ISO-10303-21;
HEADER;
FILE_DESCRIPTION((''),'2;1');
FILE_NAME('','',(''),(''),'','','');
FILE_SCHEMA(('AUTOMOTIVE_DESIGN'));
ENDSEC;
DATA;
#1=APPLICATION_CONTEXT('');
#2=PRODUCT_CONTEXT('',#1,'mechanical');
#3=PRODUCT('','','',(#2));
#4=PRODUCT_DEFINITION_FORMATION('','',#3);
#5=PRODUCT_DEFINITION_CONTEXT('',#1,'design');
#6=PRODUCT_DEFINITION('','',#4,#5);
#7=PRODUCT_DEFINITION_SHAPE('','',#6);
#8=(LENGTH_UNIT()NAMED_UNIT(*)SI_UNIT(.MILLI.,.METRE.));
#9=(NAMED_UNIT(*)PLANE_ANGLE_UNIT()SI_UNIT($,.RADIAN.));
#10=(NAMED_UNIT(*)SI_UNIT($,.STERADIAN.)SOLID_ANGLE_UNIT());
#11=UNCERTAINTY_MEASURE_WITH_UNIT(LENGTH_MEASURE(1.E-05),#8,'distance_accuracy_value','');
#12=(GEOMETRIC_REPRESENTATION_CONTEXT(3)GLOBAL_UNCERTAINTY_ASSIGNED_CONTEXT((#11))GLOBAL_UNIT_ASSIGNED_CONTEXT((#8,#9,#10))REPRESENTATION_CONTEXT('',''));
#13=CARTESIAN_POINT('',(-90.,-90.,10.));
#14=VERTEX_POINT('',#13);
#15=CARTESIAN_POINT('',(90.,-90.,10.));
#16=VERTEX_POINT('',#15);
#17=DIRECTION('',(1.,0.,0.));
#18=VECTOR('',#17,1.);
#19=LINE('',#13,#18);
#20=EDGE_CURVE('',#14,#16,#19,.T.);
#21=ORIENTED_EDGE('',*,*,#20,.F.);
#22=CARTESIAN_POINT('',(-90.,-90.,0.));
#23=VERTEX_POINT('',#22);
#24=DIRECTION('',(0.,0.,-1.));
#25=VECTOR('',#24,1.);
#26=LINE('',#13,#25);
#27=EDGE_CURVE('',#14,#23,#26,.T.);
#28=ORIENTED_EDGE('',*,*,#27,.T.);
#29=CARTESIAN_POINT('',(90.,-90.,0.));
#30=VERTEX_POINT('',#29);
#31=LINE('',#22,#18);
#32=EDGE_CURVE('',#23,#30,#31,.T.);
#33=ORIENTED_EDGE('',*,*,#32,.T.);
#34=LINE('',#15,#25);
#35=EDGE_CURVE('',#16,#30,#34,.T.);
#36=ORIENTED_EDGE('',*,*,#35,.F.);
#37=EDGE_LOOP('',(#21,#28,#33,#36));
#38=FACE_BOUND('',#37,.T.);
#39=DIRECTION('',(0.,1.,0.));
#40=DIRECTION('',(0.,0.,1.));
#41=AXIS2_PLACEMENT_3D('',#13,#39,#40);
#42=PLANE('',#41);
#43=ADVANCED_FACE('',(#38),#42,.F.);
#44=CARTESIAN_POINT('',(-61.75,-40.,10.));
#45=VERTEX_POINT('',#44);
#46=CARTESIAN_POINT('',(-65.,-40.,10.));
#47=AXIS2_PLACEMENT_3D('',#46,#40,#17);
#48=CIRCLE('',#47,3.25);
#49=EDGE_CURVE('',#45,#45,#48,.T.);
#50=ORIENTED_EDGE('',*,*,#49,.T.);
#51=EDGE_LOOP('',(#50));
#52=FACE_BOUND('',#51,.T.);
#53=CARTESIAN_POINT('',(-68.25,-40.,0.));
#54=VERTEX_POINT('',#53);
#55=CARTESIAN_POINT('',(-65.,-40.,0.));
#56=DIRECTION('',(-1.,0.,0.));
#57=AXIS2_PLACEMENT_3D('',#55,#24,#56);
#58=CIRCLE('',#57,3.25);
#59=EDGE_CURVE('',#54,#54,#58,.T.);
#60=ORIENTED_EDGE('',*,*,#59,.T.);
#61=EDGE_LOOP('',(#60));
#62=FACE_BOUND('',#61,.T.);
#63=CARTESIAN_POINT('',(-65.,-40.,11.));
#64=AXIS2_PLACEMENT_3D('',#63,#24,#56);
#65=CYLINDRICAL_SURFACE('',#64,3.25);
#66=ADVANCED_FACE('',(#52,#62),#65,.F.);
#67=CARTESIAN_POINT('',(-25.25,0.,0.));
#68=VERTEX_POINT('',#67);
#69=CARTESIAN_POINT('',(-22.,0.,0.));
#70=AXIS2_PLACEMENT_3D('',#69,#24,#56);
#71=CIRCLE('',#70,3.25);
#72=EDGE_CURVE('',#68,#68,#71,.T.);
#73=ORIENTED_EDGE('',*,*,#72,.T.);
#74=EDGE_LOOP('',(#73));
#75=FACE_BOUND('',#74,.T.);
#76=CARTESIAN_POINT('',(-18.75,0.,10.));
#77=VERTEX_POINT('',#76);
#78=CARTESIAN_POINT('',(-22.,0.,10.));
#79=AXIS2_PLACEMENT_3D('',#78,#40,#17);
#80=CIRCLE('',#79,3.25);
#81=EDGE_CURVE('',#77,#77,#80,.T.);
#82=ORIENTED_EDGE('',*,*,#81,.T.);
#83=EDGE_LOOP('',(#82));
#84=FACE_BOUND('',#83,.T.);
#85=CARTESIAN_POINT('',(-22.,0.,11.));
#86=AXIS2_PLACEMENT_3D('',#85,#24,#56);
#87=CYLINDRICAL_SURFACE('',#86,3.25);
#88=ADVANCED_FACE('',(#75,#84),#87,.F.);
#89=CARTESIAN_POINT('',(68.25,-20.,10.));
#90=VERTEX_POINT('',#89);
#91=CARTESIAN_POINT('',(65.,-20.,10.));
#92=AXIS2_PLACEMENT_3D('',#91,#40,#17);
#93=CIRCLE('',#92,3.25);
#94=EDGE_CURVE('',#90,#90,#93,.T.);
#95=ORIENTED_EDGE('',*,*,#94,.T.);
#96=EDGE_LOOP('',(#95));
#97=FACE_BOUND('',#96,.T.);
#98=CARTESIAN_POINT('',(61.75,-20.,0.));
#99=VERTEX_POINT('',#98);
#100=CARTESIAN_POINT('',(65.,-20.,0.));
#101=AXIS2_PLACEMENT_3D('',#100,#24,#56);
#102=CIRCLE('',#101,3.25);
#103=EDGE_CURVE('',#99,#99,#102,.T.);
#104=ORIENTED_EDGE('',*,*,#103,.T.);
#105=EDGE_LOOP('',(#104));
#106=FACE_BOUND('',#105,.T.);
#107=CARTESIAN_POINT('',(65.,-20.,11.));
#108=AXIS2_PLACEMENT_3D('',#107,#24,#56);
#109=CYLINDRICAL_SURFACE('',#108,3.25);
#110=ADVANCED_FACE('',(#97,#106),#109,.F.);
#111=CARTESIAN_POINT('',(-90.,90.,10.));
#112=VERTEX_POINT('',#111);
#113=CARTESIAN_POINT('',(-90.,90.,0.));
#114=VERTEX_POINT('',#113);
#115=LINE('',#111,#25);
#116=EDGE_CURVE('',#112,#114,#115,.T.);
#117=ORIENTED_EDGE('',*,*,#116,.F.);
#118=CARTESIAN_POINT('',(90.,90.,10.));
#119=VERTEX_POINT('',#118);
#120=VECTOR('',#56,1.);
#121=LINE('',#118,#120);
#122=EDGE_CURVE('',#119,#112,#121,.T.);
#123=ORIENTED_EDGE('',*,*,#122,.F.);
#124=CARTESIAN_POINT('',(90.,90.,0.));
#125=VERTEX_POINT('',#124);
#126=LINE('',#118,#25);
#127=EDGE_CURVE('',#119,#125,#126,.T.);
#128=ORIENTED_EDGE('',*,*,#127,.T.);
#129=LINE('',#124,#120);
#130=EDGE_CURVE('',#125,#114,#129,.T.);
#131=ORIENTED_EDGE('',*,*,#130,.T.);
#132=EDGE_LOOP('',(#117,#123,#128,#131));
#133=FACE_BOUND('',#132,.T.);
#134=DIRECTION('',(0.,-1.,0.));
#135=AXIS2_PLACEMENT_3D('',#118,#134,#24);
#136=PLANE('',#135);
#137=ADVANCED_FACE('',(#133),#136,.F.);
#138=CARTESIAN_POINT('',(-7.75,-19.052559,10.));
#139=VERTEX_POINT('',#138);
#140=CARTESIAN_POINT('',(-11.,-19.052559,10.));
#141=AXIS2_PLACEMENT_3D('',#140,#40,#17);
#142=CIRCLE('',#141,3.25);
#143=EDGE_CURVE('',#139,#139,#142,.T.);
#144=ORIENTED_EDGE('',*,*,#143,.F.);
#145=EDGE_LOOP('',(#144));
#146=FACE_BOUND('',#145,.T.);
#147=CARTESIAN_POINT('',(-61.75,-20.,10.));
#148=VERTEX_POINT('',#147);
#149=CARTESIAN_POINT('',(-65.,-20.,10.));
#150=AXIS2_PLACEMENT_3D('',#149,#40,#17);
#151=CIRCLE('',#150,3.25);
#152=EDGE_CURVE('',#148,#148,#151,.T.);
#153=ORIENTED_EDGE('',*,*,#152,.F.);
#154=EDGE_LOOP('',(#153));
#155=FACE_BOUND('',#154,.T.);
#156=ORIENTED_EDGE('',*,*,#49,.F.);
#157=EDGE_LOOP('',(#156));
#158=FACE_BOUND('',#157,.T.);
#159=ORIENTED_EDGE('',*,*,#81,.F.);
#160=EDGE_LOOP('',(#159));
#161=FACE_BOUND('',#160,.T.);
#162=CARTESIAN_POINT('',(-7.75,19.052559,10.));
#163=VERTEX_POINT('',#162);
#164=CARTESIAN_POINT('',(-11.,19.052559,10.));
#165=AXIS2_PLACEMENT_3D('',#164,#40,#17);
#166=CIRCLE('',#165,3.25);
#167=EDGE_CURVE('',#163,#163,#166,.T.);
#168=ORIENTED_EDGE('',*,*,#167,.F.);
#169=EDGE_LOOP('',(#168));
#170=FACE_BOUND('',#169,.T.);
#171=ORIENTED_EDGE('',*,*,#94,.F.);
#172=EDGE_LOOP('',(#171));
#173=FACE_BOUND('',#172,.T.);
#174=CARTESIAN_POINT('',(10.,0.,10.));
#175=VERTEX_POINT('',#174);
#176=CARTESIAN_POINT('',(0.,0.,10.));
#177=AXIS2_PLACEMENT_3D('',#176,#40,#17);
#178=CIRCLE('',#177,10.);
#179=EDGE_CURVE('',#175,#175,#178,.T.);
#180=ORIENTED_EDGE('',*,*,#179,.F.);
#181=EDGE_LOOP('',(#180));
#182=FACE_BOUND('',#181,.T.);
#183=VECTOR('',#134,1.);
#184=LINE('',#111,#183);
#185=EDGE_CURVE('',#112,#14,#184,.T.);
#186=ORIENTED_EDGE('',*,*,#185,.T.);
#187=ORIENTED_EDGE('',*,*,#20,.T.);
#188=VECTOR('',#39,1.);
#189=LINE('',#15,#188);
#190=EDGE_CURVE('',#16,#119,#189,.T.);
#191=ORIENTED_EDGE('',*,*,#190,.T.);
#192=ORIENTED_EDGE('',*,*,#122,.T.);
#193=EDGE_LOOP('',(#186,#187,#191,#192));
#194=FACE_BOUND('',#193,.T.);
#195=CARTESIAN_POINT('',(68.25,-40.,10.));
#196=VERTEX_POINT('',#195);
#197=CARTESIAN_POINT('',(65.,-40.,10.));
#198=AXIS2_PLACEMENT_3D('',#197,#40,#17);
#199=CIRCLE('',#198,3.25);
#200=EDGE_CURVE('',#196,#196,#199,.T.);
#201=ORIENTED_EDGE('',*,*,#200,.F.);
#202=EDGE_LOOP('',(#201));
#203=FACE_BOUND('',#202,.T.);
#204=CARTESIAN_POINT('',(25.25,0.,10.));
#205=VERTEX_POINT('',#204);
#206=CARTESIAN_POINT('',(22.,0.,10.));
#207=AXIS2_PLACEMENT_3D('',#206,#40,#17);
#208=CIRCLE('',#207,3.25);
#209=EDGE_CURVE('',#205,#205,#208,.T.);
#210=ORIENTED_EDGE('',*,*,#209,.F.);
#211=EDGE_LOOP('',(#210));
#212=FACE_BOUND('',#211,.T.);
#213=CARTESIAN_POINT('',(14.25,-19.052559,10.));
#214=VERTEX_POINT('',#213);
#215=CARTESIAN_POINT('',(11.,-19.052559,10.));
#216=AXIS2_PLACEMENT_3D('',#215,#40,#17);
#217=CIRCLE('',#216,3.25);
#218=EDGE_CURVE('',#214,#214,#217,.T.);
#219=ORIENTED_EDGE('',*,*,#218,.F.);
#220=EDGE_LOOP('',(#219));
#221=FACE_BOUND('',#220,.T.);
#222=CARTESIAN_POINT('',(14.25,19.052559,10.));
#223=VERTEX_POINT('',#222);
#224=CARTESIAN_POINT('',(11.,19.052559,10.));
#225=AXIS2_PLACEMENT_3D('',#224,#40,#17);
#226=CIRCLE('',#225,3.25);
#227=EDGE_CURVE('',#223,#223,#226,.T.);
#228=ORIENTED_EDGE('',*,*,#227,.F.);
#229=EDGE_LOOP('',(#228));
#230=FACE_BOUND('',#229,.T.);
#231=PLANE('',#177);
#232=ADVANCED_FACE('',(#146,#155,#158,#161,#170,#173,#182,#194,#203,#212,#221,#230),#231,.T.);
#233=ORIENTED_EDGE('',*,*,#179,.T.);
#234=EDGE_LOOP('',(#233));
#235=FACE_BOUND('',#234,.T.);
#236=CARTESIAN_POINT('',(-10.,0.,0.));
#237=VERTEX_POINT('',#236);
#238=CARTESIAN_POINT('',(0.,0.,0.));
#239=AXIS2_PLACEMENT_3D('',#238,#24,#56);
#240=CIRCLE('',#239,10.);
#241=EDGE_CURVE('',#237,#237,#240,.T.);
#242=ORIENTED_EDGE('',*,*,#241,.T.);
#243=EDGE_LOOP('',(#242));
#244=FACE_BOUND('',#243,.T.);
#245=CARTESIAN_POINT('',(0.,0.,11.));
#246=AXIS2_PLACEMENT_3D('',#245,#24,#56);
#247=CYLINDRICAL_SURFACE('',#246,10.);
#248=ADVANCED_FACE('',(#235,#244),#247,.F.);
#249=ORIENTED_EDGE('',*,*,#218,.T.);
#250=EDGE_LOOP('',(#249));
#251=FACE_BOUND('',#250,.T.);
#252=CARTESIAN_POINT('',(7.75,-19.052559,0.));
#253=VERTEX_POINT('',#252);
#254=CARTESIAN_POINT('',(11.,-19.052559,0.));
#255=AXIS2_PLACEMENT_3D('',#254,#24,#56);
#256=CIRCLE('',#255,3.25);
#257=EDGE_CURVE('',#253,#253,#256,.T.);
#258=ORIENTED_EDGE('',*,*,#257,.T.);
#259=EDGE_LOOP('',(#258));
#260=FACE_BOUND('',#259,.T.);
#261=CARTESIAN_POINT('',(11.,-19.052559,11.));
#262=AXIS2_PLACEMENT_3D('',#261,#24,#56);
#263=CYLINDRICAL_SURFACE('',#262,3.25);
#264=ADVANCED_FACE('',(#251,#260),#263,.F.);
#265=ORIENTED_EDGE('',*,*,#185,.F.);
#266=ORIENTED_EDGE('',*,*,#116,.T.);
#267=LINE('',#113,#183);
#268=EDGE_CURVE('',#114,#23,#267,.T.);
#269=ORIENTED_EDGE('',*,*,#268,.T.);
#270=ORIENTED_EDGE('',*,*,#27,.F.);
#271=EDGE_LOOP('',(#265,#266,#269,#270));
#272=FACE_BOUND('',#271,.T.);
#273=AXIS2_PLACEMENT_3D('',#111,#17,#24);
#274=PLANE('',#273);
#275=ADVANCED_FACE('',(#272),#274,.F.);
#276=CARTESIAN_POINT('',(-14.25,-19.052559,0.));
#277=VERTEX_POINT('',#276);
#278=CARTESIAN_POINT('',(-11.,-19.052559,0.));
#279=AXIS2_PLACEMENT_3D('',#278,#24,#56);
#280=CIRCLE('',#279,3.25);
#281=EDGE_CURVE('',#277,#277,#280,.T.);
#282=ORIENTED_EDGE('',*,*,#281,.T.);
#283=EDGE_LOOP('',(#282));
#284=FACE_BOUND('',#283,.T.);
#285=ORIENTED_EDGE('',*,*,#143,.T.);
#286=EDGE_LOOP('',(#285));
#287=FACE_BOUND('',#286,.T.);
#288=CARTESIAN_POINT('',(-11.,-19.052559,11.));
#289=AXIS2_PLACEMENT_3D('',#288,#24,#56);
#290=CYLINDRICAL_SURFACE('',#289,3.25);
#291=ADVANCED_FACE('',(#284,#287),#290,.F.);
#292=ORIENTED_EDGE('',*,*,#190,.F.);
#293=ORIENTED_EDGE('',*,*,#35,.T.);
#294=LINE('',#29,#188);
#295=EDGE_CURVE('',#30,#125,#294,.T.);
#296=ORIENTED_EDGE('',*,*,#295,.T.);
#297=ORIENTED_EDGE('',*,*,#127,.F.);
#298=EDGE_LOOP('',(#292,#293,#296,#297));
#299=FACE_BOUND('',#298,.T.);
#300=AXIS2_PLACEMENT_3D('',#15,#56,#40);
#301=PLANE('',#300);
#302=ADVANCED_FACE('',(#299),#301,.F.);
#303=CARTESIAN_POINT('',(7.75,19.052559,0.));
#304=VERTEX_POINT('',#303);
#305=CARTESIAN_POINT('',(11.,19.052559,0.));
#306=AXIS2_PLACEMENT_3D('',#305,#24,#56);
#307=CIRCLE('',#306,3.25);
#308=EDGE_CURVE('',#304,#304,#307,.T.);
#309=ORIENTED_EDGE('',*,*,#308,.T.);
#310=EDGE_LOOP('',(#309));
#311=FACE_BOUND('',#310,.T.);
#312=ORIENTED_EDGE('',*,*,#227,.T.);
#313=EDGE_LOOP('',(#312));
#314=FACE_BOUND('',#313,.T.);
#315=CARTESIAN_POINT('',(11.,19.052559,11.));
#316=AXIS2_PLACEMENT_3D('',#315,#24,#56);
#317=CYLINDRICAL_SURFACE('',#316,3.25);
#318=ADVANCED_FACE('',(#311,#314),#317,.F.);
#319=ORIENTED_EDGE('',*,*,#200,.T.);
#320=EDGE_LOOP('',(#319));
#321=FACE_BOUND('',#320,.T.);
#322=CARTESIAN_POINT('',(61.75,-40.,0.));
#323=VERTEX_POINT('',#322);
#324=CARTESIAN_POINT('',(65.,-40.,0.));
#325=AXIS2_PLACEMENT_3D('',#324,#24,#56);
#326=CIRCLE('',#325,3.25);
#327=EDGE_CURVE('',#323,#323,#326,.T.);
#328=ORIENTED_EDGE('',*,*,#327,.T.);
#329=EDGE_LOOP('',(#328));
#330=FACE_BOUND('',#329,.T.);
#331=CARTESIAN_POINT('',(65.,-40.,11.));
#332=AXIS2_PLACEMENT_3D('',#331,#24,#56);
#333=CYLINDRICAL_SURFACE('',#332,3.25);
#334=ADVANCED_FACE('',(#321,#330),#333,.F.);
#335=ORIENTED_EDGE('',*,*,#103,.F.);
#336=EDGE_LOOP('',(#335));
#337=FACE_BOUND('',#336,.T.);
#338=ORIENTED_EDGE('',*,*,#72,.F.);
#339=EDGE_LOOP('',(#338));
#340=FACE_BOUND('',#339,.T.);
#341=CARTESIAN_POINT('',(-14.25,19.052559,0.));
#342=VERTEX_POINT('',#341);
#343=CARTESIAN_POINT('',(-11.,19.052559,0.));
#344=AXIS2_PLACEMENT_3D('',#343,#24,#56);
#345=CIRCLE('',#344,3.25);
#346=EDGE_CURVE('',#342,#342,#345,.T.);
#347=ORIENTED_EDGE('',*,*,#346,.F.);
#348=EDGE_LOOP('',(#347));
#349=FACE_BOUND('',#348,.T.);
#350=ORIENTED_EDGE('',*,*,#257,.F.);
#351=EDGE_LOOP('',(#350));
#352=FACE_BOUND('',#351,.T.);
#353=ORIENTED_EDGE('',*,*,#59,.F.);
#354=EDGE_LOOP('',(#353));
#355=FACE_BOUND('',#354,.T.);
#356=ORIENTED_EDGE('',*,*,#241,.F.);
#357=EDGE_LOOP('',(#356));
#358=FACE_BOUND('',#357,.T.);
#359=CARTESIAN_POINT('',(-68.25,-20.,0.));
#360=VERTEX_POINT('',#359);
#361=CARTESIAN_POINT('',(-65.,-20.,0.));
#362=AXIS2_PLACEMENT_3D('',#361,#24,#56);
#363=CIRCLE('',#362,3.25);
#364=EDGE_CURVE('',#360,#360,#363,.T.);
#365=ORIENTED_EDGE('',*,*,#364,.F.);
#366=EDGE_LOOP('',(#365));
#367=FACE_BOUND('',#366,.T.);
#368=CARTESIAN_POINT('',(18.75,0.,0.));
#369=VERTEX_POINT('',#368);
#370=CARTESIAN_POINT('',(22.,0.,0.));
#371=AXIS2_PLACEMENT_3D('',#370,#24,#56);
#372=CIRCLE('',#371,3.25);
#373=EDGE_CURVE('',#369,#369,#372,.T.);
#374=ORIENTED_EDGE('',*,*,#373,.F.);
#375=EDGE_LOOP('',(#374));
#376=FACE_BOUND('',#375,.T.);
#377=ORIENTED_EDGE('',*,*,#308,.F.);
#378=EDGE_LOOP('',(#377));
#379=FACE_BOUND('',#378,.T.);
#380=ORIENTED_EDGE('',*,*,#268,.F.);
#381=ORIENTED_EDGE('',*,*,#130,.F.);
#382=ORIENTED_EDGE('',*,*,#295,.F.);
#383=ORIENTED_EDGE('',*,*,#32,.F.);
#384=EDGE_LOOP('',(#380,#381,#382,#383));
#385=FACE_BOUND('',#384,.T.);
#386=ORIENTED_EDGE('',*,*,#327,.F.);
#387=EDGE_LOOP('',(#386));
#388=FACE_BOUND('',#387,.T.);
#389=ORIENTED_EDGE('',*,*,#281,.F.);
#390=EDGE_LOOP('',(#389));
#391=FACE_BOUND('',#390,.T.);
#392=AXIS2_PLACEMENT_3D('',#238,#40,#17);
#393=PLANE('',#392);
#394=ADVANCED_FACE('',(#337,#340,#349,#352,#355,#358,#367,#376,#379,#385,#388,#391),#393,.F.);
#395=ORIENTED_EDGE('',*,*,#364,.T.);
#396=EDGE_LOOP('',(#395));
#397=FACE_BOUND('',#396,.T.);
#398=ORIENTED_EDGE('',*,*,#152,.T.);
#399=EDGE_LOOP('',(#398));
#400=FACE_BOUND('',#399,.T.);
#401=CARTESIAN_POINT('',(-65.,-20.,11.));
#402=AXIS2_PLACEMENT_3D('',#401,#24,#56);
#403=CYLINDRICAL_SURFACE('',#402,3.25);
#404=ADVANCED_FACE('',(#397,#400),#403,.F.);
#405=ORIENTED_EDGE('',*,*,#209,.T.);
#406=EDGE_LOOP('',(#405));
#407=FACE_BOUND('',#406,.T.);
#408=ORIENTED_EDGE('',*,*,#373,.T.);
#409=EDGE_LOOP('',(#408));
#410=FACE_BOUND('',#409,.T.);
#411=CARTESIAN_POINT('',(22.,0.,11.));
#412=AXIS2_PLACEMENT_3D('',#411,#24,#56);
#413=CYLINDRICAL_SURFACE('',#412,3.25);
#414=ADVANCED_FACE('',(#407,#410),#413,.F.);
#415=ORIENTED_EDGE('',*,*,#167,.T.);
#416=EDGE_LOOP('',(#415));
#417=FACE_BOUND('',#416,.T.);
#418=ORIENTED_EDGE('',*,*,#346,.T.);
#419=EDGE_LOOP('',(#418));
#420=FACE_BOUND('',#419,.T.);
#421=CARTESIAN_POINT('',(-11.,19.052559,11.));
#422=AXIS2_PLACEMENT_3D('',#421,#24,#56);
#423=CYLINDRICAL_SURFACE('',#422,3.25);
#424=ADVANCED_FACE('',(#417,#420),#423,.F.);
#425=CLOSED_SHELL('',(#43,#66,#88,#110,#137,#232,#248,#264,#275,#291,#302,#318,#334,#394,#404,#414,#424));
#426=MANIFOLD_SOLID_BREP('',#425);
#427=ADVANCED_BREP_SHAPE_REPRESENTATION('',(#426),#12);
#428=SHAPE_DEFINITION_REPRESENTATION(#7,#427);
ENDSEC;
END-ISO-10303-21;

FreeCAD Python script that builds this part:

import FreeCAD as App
import Part
import Sketcher
Q = App.Units.Quantity

doc = App.newDocument("Part")
body = doc.addObject("PartDesign::Body", "Body")

# Sketch on XY plane
sketch1 = doc.addObject("Sketcher::SketchObject", "Sketch")
body.addObject(sketch1)
sketch1.AttachmentSupport = (doc.XY_Plane, [""])
sketch1.MapMode = "FlatFace"
sketch1.addGeometry(Part.LineSegment(App.Vector(-90, 90, 0), App.Vector(-90, -90, 0)), False)
sketch1.addGeometry(Part.LineSegment(App.Vector(-90, -90, 0), App.Vector(90, -90, 0)), False)
sketch1.addGeometry(Part.LineSegment(App.Vector(90, -90, 0), App.Vector(90, 90, 0)), False)
sketch1.addGeometry(Part.LineSegment(App.Vector(90, 90, 0), App.Vector(-90, 90, 0)), False)
sketch1.addConstraint(Sketcher.Constraint("Coincident", 0, 2, 1, 1))
sketch1.addConstraint(Sketcher.Constraint("Coincident", 1, 2, 2, 1))
sketch1.addConstraint(Sketcher.Constraint("Coincident", 2, 2, 3, 1))
sketch1.addConstraint(Sketcher.Constraint("Coincident", 3, 2, 0, 1))
sketch1.addConstraint(Sketcher.Constraint("Vertical", 0))
sketch1.addConstraint(Sketcher.Constraint("Horizontal", 1))
sketch1.addConstraint(Sketcher.Constraint("Vertical", 2))
sketch1.addConstraint(Sketcher.Constraint("Horizontal", 3))
sketch1.addConstraint(Sketcher.Constraint("Symmetric", 0, 2, 2, 2, -1, 1))
sketch1.addConstraint(Sketcher.Constraint("Equal", 3, 0))
sketch1.addConstraint(Sketcher.Constraint("DistanceX", 1, 1, 1, 2, Q("180 mm")))
pad1 = doc.addObject("PartDesign::Pad", "Pad")
body.addObject(pad1)
pad1.Profile = sketch1
pad1.Length = 10

# Sketch on XY plane
sketch2 = doc.addObject("Sketcher::SketchObject", "Sketch001")
body.addObject(sketch2)
sketch2.AttachmentSupport = (doc.XY_Plane, [""])
sketch2.MapMode = "FlatFace"
sketch2.addGeometry(Part.Circle(App.Vector(0, 0, 0), App.Vector(0, 0, 1), 10), False)
sketch2.addGeometry(Part.Circle(App.Vector(22, 0, 0), App.Vector(0, 0, 1), 3.2), False)
sketch2.addGeometry(Part.Circle(App.Vector(11, 19.1, 0), App.Vector(0, 0, 1), 3.2), False)
sketch2.addGeometry(Part.Circle(App.Vector(-11, 19.1, 0), App.Vector(0, 0, 1), 3.2), False)
sketch2.addGeometry(Part.Circle(App.Vector(-22, 0, 0), App.Vector(0, 0, 1), 3.2), False)
sketch2.addGeometry(Part.Circle(App.Vector(-11, -19.1, 0), App.Vector(0, 0, 1), 3.2), False)
sketch2.addGeometry(Part.Circle(App.Vector(11, -19.1, 0), App.Vector(0, 0, 1), 3.2), False)
sketch2.addGeometry(Part.Circle(App.Vector(-65, -20, 0), App.Vector(0, 0, 1), 3.2), False)
sketch2.addGeometry(Part.Circle(App.Vector(-65, -40, 0), App.Vector(0, 0, 1), 3.2), False)
sketch2.addGeometry(Part.Circle(App.Vector(65, -20, 0), App.Vector(0, 0, 1), 3.2), False)
sketch2.addGeometry(Part.Circle(App.Vector(65, -40, 0), App.Vector(0, 0, 1), 3.2), False)
sketch2.addConstraint(Sketcher.Constraint("Coincident", 0, 3, -1, 1))
sketch2.addConstraint(Sketcher.Constraint("Equal", 1, 2))
sketch2.addConstraint(Sketcher.Constraint("Equal", 2, 3))
sketch2.addConstraint(Sketcher.Constraint("Equal", 3, 4))
sketch2.addConstraint(Sketcher.Constraint("Equal", 4, 5))
sketch2.addConstraint(Sketcher.Constraint("Equal", 5, 6))
sketch2.addConstraint(Sketcher.Constraint("Equal", 6, 7))
sketch2.addConstraint(Sketcher.Constraint("Equal", 7, 8))
sketch2.addConstraint(Sketcher.Constraint("Equal", 8, 9))
sketch2.addConstraint(Sketcher.Constraint("Equal", 9, 10))
sketch2.addConstraint(Sketcher.Constraint("Symmetric", 1, 3, 4, 3, -1, 1))
sketch2.addConstraint(Sketcher.Constraint("Symmetric", 2, 3, 5, 3, -1, 1))
sketch2.addConstraint(Sketcher.Constraint("Symmetric", 3, 3, 6, 3, -1, 1))
sketch2.addConstraint(Sketcher.Constraint("Symmetric", 2, 3, 3, 3, -2))
sketch2.addConstraint(Sketcher.Constraint("Symmetric", 7, 3, 9, 3, -2))
sketch2.addConstraint(Sketcher.Constraint("Symmetric", 8, 3, 10, 3, -2))
sketch2.addConstraint(Sketcher.Constraint("PointOnObject", 1, 3, -1))
sketch2.addConstraint(Sketcher.Constraint("Vertical", 7, 3, 8, 3))
sketch2.addConstraint(Sketcher.Constraint("Diameter", 0, Q("20 mm")))
sketch2.addConstraint(Sketcher.Constraint("Diameter", 1, Q("6.5 mm")))
sketch2.addConstraint(Sketcher.Constraint("DistanceX", -1, 1, 1, 3, Q("22 mm")))
sketch2.addConstraint(Sketcher.Constraint("DistanceX", -1, 1, 2, 3, Q("11 mm")))
sketch2.addConstraint(Sketcher.Constraint("DistanceX", 7, 3, -1, 1, Q("65 mm")))
sketch2.addConstraint(Sketcher.Constraint("DistanceY", 7, 3, -1, 1, Q("20 mm")))
sketch2.addConstraint(Sketcher.Constraint("DistanceY", 8, 3, -1, 1, Q("40 mm")))
sketch2.addConstraint(Sketcher.Constraint("DistanceY", -1, 1, 2, 3, Q("19.052559 mm")))
pocket1 = doc.addObject("PartDesign::Pocket", "Pocket")
body.addObject(pocket1)
pocket1.Profile = sketch2
pocket1.Length = 11
pocket1.Reversed = True

doc.recompute()
